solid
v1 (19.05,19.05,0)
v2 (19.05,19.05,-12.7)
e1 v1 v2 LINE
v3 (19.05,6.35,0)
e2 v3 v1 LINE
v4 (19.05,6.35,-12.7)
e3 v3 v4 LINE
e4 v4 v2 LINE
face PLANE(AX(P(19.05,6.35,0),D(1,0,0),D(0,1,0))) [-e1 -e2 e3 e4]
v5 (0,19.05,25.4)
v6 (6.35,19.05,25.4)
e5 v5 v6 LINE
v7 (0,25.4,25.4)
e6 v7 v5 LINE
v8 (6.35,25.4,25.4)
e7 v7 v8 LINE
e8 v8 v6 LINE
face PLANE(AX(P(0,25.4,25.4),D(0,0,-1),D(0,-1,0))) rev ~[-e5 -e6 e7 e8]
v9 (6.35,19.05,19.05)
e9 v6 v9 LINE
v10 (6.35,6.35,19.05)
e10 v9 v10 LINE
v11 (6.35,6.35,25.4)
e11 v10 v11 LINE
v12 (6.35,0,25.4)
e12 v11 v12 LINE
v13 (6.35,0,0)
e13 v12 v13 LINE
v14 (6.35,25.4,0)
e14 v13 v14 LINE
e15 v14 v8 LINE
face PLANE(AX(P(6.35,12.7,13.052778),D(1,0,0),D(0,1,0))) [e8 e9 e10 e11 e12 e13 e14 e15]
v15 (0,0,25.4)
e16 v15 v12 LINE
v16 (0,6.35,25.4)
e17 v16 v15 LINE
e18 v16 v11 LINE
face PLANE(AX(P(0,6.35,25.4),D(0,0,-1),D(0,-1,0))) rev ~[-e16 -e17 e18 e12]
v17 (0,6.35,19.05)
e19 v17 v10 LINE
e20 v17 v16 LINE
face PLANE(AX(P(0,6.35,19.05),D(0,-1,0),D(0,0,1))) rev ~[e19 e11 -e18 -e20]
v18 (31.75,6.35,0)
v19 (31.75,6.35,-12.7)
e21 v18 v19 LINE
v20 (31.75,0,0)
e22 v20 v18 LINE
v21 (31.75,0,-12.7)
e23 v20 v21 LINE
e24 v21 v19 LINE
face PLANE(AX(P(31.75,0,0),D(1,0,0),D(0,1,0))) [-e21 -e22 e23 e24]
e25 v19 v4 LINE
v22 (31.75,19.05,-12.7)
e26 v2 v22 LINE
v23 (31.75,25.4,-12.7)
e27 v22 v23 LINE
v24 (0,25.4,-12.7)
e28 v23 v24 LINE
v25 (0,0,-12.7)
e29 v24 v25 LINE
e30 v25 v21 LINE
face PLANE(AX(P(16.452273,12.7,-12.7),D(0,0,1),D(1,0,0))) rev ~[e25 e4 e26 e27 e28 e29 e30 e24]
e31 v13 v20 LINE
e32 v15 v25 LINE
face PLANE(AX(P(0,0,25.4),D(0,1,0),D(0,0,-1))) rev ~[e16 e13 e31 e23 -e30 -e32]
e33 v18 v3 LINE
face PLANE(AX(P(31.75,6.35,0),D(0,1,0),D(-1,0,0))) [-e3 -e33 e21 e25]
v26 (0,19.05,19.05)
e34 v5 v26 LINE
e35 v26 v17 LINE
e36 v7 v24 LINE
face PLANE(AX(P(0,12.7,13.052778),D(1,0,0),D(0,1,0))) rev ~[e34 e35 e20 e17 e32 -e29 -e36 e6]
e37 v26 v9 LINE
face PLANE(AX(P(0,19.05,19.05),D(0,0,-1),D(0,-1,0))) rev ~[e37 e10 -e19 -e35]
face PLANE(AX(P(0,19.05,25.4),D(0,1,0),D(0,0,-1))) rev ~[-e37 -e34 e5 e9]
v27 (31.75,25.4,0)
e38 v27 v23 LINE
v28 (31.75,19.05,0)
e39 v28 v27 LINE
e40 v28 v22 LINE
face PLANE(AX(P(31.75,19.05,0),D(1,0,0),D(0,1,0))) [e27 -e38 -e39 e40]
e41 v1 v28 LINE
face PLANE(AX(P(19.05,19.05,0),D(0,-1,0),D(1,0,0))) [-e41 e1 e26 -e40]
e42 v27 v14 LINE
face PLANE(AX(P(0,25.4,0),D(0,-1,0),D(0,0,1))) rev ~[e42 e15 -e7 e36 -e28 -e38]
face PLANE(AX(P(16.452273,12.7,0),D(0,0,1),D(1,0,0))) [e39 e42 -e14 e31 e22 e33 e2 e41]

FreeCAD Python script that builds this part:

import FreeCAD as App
import Part
import Sketcher
from FreeCAD import Vector
Q = App.Units.Quantity


def add_polygon(sketch, points):
    """Adds a closed chain of lines whose ends are joined by coincident constraints."""
    first, n = sketch.GeometryCount, len(points)
    for a, b in zip(points, points[1:] + points[:1]):
        sketch.addGeometry(Part.LineSegment(App.Vector(*a, 0), App.Vector(*b, 0)), False)
    for i in range(n):
        sketch.addConstraint(Sketcher.Constraint("Coincident", first + i, 2, first + (i + 1) % n, 1))

doc = App.newDocument("Part")
params = doc.addObject("Spreadsheet::Sheet", "Params")
for row, (alias, value) in enumerate([
    ("sketch1_height", "1 in"),
    ("sketch1_width", "0.5 in"),
    ("sketch1_width2", "1.25 in"),
    ("pad1_length", "0.5 in"),
    ("sketch2_width", "1 in"),
    ("sketch2_width2", "0.5 in"),
    ("pad2_length", "0.25 in"),
], start=1):
    params.set(f"A{row}", alias)
    params.set(f"B{row}", "=" + value)
    params.setAlias(f"B{row}", alias)

body = doc.addObject("PartDesign::Body", "Body")

# Sketch on XY plane
sketch1 = doc.addObject("Sketcher::SketchObject", "Sketch")
body.addObject(sketch1)
sketch1.AttachmentSupport = (doc.XY_Plane, [""])
sketch1.MapMode = "FlatFace"
add_polygon(sketch1, [(0, 25.4), (0, 0), (31.75, 0), (31.75, 6.35), (19.05, 6.35), (19.05, 19.05), (31.75, 19.05), (31.75, 25.4)])  # lines 0-7
sketch1.addConstraint([
    Sketcher.Constraint("Vertical", 0),
    Sketcher.Constraint("Horizontal", 1),
    Sketcher.Constraint("Vertical", 2),
    Sketcher.Constraint("Horizontal", 3),
    Sketcher.Constraint("Vertical", 4),
    Sketcher.Constraint("Horizontal", 5),
    Sketcher.Constraint("Vertical", 6),
    Sketcher.Constraint("Horizontal", 7),
    Sketcher.Constraint("Coincident", 0, 2, -1, 1),
    Sketcher.Constraint("Vertical", 2, 2, 5, 2),
    Sketcher.Constraint("Equal", 5, 4),
    Sketcher.Constraint("Equal", 2, 6),
    Sketcher.Constraint("DistanceY", 0, 2, 0, 1, Q("1 in")),
    Sketcher.Constraint("DistanceX", 3, 2, 3, 1, Q("0.5 in")),
    Sketcher.Constraint("DistanceX", 1, 1, 1, 2, Q("1.25 in")),
])
sketch1.setExpression("Constraints[20]", "Params.sketch1_height")
sketch1.setExpression("Constraints[21]", "Params.sketch1_width")
sketch1.setExpression("Constraints[22]", "Params.sketch1_width2")
pad1 = doc.addObject("PartDesign::Pad", "Pad")
body.addObject(pad1)
pad1.Profile = sketch1
pad1.setExpression("Length", "Params.pad1_length")
pad1.Reversed = True

# Sketch on YZ plane
sketch2 = doc.addObject("Sketcher::SketchObject", "Sketch001")
body.addObject(sketch2)
sketch2.AttachmentSupport = (doc.YZ_Plane, [""])
sketch2.MapMode = "FlatFace"
add_polygon(sketch2, [(0, 25.4), (0, 0), (25.4, 0), (25.4, 25.4), (19.05, 25.4), (19.05, 19.05), (6.35, 19.05), (6.35, 25.4)])  # lines 0-7
sketch2.addConstraint([
    Sketcher.Constraint("Vertical", 0),
    Sketcher.Constraint("Horizontal", 1),
    Sketcher.Constraint("Vertical", 2),
    Sketcher.Constraint("Horizontal", 3),
    Sketcher.Constraint("Vertical", 4),
    Sketcher.Constraint("Horizontal", 5),
    Sketcher.Constraint("Vertical", 6),
    Sketcher.Constraint("Horizontal", 7),
    Sketcher.Constraint("Coincident", 0, 2, -1, 1),
    Sketcher.Constraint("Horizontal", 3, 2, 6, 2),
    Sketcher.Constraint("Equal", 3, 7),
    Sketcher.Constraint("Equal", 1, 0),
    Sketcher.Constraint("Equal", 7, 4),
    Sketcher.Constraint("DistanceX", 1, 1, 1, 2, Q("1 in")),
    Sketcher.Constraint("DistanceX", 5, 2, 5, 1, Q("0.5 in")),
])
sketch2.setExpression("Constraints[21]", "Params.sketch2_width")
sketch2.setExpression("Constraints[22]", "Params.sketch2_width2")
pad2 = doc.addObject("PartDesign::Pad", "Pad001")
body.addObject(pad2)
pad2.Profile = sketch2
pad2.setExpression("Length", "Params.pad2_length")

doc.recompute()
